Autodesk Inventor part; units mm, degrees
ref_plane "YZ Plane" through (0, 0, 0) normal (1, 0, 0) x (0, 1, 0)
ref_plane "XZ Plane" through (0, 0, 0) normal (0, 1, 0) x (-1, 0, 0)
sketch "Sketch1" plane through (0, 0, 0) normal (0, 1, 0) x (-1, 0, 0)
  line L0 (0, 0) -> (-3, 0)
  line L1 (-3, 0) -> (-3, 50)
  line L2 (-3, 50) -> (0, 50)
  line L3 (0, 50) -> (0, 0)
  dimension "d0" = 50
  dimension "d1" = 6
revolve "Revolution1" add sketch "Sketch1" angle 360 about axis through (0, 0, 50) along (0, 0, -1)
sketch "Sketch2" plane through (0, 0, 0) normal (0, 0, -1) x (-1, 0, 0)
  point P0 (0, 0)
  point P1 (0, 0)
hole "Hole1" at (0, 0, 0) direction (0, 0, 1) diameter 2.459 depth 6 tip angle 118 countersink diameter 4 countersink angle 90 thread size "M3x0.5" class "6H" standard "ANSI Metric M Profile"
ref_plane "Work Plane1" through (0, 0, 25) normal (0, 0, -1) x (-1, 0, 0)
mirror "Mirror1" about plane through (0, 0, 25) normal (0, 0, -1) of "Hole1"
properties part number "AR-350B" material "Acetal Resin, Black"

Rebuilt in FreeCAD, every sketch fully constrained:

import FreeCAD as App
import Part
import Sketcher
from FreeCAD import Vector


def add_polygon(sketch, points):
    """Adds a closed chain of lines whose ends are joined by coincident constraints."""
    first, n = sketch.GeometryCount, len(points)
    for a, b in zip(points, points[1:] + points[:1]):
        sketch.addGeometry(Part.LineSegment(App.Vector(*a, 0), App.Vector(*b, 0)), False)
    for i in range(n):
        sketch.addConstraint(Sketcher.Constraint("Coincident", first + i, 2, first + (i + 1) % n, 1))

doc = App.newDocument("Part")
body = doc.addObject("PartDesign::Body", "Body")

sketch1 = body.newObject("Sketcher::SketchObject", "Sketch")
sketch1.AttachmentSupport = (doc.getObject("XZ_Plane"), [""])
sketch1.MapMode = "FlatFace"
add_polygon(sketch1, [(3, 0), (0, 0), (0, 50), (3, 50)])
sketch1.addConstraint(Sketcher.Constraint("Horizontal", 0))
sketch1.addConstraint(Sketcher.Constraint("Vertical", 1))
sketch1.addConstraint(Sketcher.Constraint("Horizontal", 2))
sketch1.addConstraint(Sketcher.Constraint("Vertical", 3))
sketch1.addConstraint(Sketcher.Constraint("Coincident", 0, 2, -1, 1))
sketch1.addConstraint(Sketcher.Constraint("DistanceY", 1, 1, 1, 2, 50.0))
sketch1.addConstraint(Sketcher.Constraint("DistanceX", 0, 2, 0, 1, 3.0))
revolution = body.newObject("PartDesign::Revolution", "Revolution")
revolution.Profile = sketch1
revolution.ReferenceAxis = (sketch1, ["V_Axis"])
revolution.Angle = 360

sketch2 = body.newObject("Sketcher::SketchObject", "Sketch001")
sketch2.AttachmentSupport = (doc.getObject("XY_Plane"), [""])
sketch2.MapMode = "FlatFace"
sketch2.addGeometry(Part.Circle(Vector(0, 0, 0), Vector(0, 0, 1), 1.2), False)
sketch2.addConstraint(Sketcher.Constraint("Coincident", 0, 3, -1, 1))
sketch2.addConstraint(Sketcher.Constraint("Diameter", 0, 2.459))
doc.recompute()
hole = body.newObject("PartDesign::Hole", "Hole")
hole.Profile = sketch2
hole.ThreadType = "None"
hole.Diameter = 2.459
hole.DepthType = "Dimension"
hole.Depth = 6
hole.DrillPoint = "Angled"
hole.DrillPointAngle = 118
hole.HoleCutType = "Countersink"
hole.HoleCutDiameter = 4
hole.HoleCutCountersinkAngle = 90
hole.Reversed = True
doc.recompute()

datumplane = body.newObject("PartDesign::Plane", "DatumPlane")
datumplane.AttachmentSupport = (doc.getObject("XY_Plane"), [""])
datumplane.MapMode = "FlatFace"
datumplane.AttachmentOffset = App.Placement(Vector(0, 0, 25), App.Rotation())
mirrored = body.newObject("PartDesign::Mirrored", "Mirrored")
mirrored.Originals = [hole]
mirrored.MirrorPlane = (datumplane, [""])
body.Tip = mirrored

doc.recompute()
